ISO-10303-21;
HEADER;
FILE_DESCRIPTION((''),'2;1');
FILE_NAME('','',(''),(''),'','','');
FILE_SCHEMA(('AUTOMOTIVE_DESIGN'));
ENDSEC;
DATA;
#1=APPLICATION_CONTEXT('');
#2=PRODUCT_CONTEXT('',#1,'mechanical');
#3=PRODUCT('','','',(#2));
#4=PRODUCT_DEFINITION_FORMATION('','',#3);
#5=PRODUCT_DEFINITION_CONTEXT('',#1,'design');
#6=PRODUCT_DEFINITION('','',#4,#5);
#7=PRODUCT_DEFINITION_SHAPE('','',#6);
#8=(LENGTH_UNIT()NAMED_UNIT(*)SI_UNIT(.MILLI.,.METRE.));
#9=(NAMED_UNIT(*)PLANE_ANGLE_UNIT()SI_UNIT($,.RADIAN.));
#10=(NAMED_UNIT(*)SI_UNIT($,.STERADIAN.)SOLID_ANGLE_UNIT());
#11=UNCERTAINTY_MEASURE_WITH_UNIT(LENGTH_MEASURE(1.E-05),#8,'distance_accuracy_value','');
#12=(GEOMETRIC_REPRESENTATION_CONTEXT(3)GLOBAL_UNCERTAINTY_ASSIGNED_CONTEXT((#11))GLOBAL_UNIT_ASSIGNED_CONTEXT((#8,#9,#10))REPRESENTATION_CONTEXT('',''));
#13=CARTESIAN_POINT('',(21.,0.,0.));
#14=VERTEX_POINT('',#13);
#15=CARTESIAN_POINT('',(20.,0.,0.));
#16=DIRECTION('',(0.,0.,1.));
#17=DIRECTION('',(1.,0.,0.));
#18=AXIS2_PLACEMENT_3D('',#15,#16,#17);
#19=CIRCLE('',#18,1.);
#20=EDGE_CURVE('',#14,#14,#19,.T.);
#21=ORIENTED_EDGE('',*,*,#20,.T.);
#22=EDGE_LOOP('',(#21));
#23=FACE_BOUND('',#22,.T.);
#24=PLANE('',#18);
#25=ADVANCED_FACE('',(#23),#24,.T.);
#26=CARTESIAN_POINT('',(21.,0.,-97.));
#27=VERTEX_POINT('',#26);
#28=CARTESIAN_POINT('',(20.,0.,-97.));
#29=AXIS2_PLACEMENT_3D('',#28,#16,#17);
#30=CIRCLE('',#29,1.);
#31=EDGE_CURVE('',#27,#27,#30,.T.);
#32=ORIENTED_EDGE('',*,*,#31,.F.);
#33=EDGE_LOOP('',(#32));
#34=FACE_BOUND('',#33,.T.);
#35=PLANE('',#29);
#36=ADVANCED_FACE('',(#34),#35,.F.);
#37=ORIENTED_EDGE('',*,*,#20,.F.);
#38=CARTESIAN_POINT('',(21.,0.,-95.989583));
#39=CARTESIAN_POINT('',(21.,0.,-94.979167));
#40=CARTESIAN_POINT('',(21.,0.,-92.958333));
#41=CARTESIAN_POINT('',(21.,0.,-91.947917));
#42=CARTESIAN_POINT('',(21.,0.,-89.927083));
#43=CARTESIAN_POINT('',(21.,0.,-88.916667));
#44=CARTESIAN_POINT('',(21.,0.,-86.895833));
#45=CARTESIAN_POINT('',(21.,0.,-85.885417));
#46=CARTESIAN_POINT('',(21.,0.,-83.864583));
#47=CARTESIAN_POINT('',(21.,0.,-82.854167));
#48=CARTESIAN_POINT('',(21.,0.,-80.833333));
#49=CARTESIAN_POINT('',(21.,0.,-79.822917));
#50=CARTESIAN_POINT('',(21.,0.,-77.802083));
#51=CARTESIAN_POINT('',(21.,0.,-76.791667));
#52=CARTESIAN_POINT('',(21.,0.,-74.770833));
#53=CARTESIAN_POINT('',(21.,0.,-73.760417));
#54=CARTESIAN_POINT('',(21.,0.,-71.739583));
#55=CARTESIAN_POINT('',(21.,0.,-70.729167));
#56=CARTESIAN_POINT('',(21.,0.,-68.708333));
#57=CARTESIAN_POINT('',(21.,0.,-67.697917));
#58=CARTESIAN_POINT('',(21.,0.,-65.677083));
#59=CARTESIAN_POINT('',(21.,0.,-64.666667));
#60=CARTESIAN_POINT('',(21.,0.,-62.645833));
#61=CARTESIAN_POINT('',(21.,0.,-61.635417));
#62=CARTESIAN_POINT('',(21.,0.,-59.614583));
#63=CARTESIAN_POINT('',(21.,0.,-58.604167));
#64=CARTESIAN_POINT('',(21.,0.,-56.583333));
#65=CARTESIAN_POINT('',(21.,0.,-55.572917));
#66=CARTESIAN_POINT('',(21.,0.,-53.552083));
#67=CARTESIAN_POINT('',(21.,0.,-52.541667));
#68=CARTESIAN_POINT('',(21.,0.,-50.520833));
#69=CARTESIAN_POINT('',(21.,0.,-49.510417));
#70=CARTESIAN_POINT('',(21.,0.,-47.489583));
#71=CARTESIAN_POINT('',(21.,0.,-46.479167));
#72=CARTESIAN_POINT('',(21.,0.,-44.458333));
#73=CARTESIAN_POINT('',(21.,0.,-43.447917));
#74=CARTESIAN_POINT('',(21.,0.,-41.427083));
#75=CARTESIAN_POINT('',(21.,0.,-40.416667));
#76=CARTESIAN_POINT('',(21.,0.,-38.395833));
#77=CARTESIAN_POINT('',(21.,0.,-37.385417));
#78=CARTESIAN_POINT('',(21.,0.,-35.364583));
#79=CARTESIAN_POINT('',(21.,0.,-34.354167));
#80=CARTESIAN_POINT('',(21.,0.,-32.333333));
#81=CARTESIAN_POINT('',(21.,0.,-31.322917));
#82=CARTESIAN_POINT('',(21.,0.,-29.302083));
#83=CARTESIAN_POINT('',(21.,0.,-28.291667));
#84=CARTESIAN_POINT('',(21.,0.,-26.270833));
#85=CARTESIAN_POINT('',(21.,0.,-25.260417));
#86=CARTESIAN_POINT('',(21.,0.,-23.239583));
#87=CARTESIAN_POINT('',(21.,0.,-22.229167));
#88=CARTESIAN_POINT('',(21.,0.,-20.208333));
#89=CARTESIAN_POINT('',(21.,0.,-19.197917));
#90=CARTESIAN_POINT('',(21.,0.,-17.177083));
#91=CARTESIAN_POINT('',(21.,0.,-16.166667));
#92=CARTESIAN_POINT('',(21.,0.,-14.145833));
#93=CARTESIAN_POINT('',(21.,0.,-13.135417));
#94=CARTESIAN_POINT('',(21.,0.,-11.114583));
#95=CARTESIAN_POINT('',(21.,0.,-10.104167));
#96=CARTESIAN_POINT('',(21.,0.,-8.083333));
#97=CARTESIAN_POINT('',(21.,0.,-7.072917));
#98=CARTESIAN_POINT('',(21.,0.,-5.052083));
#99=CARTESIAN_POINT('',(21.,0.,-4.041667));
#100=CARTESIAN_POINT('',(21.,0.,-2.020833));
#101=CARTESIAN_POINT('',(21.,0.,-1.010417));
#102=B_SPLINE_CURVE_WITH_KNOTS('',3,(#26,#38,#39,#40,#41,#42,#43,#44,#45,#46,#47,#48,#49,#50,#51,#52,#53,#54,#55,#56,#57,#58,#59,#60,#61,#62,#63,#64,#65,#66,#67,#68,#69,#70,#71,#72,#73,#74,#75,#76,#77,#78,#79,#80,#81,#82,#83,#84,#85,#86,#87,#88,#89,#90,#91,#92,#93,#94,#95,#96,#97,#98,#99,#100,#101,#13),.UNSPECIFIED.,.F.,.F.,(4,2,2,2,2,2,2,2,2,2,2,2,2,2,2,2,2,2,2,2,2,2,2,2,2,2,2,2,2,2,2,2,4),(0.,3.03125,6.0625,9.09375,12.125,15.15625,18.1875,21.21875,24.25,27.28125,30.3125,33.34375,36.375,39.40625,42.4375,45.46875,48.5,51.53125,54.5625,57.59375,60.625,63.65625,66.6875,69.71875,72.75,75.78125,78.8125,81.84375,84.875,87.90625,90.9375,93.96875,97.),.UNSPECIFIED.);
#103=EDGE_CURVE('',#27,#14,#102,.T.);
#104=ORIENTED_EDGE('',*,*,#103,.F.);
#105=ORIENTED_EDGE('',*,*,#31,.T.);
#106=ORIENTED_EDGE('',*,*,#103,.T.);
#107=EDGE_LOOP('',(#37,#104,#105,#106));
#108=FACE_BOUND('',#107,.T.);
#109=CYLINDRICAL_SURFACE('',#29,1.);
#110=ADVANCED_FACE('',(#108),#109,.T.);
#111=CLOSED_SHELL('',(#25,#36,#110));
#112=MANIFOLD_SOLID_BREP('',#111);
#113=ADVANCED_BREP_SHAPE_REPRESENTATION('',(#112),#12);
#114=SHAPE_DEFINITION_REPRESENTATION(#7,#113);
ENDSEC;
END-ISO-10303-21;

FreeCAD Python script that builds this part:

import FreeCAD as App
import Part
import Sketcher
from FreeCAD import Vector

doc = App.newDocument("Part")
body = doc.addObject("PartDesign::Body", "Body")

# Sketch on XY plane
sketch1 = body.newObject("Sketcher::SketchObject", "Sketch")
sketch1.AttachmentSupport = (doc.getObject("XY_Plane"), [""])
sketch1.MapMode = "FlatFace"
sketch1.addGeometry(Part.Circle(Vector(20, 0, 0), Vector(0, 0, 1), 1), False)
sketch1.addConstraint(Sketcher.Constraint("PointOnObject", 0, 3, -1))
sketch1.addConstraint(Sketcher.Constraint("Diameter", 0, 2.0))
sketch1.addConstraint(Sketcher.Constraint("DistanceX", -1, 1, 0, 3, 20.0))
pad1 = body.newObject("PartDesign::Pad", "Pad")
pad1.Profile = sketch1
pad1.Length = 97
pad1.Reversed = True

doc.recompute()
